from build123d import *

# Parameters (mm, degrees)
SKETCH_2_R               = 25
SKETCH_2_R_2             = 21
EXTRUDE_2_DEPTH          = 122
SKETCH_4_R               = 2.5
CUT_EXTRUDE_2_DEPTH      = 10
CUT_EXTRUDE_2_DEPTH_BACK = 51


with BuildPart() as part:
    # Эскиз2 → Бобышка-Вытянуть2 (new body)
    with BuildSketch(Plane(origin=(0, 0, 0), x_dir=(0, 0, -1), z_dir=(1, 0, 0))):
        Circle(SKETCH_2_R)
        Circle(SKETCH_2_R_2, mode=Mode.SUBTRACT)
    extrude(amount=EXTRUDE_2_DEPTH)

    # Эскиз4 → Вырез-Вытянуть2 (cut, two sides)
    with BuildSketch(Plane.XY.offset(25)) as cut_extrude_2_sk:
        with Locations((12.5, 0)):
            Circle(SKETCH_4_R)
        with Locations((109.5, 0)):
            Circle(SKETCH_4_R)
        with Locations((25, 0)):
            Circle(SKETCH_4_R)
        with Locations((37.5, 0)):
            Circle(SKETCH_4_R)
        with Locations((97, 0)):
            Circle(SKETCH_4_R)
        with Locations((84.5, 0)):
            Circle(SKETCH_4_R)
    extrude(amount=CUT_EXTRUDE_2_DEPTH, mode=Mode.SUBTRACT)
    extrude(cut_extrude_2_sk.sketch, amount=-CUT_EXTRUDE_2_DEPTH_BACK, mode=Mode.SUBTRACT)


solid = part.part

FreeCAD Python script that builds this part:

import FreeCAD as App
import Part
import Sketcher

doc = App.newDocument("Part")
params = doc.addObject("Spreadsheet::Sheet", "Params")
for row, (alias, value) in enumerate([
    ("sketch1_diameter", "50 mm"),
    ("sketch1_diameter2", "42 mm"),
    ("pad1_length", "122 mm"),
    ("sketch2_diameter", "5 mm"),
], start=1):
    params.set(f"A{row}", alias)
    params.set(f"B{row}", "=" + value)
    params.setAlias(f"B{row}", alias)

body = doc.addObject("PartDesign::Body", "Body")

# Sketch on YZ plane
sketch1 = doc.addObject("Sketcher::SketchObject", "Sketch")
body.addObject(sketch1)
sketch1.AttachmentSupport = (doc.YZ_Plane, [""])
sketch1.MapMode = "FlatFace"
sketch1.addGeometry(Part.Circle(App.Vector(0, 0, 0), App.Vector(0, 0, 1), 25), False)
sketch1.addGeometry(Part.Circle(App.Vector(0, 0, 0), App.Vector(0, 0, 1), 21), False)
sketch1.addConstraint(Sketcher.Constraint("Coincident", 0, 3, -1, 1))
sketch1.addConstraint(Sketcher.Constraint("Coincident", 1, 3, -1, 1))
sketch1.addConstraint(Sketcher.Constraint("Diameter", 0, 50.0))
sketch1.addConstraint(Sketcher.Constraint("Diameter", 1, 42.0))
sketch1.setExpression("Constraints[2]", "Params.sketch1_diameter")
sketch1.setExpression("Constraints[3]", "Params.sketch1_diameter2")
pad1 = doc.addObject("PartDesign::Pad", "Pad")
body.addObject(pad1)
pad1.Profile = sketch1
pad1.setExpression("Length", "Params.pad1_length")

# Sketch on XY plane
sketch2 = doc.addObject("Sketcher::SketchObject", "Sketch001")
body.addObject(sketch2)
sketch2.AttachmentSupport = (doc.XY_Plane, [""])
sketch2.MapMode = "FlatFace"
sketch2.AttachmentOffset = App.Placement(App.Vector(0, 0, 25), App.Rotation())
sketch2.addGeometry(Part.Circle(App.Vector(12.5, 0, 0), App.Vector(0, 0, 1), 2.5), False)
sketch2.addGeometry(Part.Circle(App.Vector(109.5, 0, 0), App.Vector(0, 0, 1), 2.5), False)
sketch2.addGeometry(Part.Circle(App.Vector(25, 0, 0), App.Vector(0, 0, 1), 2.5), False)
sketch2.addGeometry(Part.Circle(App.Vector(37.5, 0, 0), App.Vector(0, 0, 1), 2.5), False)
sketch2.addGeometry(Part.Circle(App.Vector(97, 0, 0), App.Vector(0, 0, 1), 2.5), False)
sketch2.addGeometry(Part.Circle(App.Vector(84.5, 0, 0), App.Vector(0, 0, 1), 2.5), False)
sketch2.addConstraint(Sketcher.Constraint("Equal", 0, 1))
sketch2.addConstraint(Sketcher.Constraint("Equal", 1, 2))
sketch2.addConstraint(Sketcher.Constraint("Equal", 2, 3))
sketch2.addConstraint(Sketcher.Constraint("Equal", 3, 4))
sketch2.addConstraint(Sketcher.Constraint("Equal", 4, 5))
sketch2.addConstraint(Sketcher.Constraint("PointOnObject", 0, 3, -1))
sketch2.addConstraint(Sketcher.Constraint("PointOnObject", 1, 3, -1))
sketch2.addConstraint(Sketcher.Constraint("PointOnObject", 2, 3, -1))
sketch2.addConstraint(Sketcher.Constraint("PointOnObject", 3, 3, -1))
sketch2.addConstraint(Sketcher.Constraint("PointOnObject", 4, 3, -1))
sketch2.addConstraint(Sketcher.Constraint("PointOnObject", 5, 3, -1))
sketch2.addConstraint(Sketcher.Constraint("Diameter", 0, 5.0))
sketch2.addConstraint(Sketcher.Constraint("DistanceX", -1, 1, 2, 3, 25.0))
sketch2.addConstraint(Sketcher.Constraint("DistanceX", -1, 1, 4, 3, 97.0))
sketch2.addConstraint(Sketcher.Constraint("DistanceX", 0, 3, 1, 3, 97.0))
sketch2.addConstraint(Sketcher.Constraint("DistanceX", 0, 3, 3, 3, 25.0))
sketch2.addConstraint(Sketcher.Constraint("DistanceX", 5, 3, 1, 3, 25.0))
sketch2.addConstraint(Sketcher.Constraint("DistanceX", -1, 1, 0, 3, 12.5))
sketch2.setExpression("Constraints[11]", "Params.sketch2_diameter")
pocket1 = doc.addObject("PartDesign::Pocket", "Pocket")
body.addObject(pocket1)
pocket1.Profile = sketch2
pocket1.Type = "ThroughAll"
pocket1.Midplane = True

doc.recompute()
